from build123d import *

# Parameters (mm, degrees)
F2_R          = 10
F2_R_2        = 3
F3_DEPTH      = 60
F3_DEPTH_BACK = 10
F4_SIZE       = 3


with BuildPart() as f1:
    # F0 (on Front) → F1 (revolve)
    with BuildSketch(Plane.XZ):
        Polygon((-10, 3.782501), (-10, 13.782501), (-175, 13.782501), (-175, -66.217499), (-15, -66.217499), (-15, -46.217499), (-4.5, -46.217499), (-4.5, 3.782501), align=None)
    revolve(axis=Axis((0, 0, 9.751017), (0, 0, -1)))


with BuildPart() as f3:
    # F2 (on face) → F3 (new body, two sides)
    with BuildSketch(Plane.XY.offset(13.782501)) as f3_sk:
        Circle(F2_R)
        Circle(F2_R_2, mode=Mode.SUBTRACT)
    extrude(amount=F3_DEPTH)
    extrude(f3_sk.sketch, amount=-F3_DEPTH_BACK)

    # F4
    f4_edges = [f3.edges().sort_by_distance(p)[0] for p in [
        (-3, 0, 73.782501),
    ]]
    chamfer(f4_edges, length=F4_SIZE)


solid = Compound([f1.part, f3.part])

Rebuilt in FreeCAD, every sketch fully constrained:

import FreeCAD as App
import Part
import Sketcher

V = App.Vector


def edges_at(feature, points):
    """Names of the edges that pass closest to the given points."""
    edges = feature.Shape.Edges
    near = lambda p: min(range(len(edges)), key=lambda i: edges[i].distToShape(Part.Vertex(*p))[0])
    return sorted({f"Edge{near(p) + 1}" for p in points})

doc = App.newDocument("Part")
body = doc.addObject("PartDesign::Body", "Body")

sketch1 = body.newObject("Sketcher::SketchObject", "Sketch")
sketch1.AttachmentSupport = (doc.getObject("XZ_Plane"), [""])
sketch1.MapMode = "FlatFace"
sketch1.addGeometry(Part.LineSegment(V(-10, 4, 0), V(-10, 14, 0)), False)
sketch1.addGeometry(Part.LineSegment(V(-10, 14, 0), V(-175, 14, 0)), False)
sketch1.addGeometry(Part.LineSegment(V(-175, 14, 0), V(-175, -66, 0)), False)
sketch1.addGeometry(Part.LineSegment(V(-175, -66, 0), V(-15, -66, 0)), False)
sketch1.addGeometry(Part.LineSegment(V(-15, -66, 0), V(-15, -46, 0)), False)
sketch1.addGeometry(Part.LineSegment(V(-15, -46, 0), V(-4, -46, 0)), False)
sketch1.addGeometry(Part.LineSegment(V(-4, -46, 0), V(-4, 4, 0)), False)
sketch1.addGeometry(Part.LineSegment(V(-4, 4, 0), V(-10, 4, 0)), False)
sketch1.addConstraint(Sketcher.Constraint("Coincident", 0, 2, 1, 1))
sketch1.addConstraint(Sketcher.Constraint("Coincident", 1, 2, 2, 1))
sketch1.addConstraint(Sketcher.Constraint("Coincident", 2, 2, 3, 1))
sketch1.addConstraint(Sketcher.Constraint("Coincident", 3, 2, 4, 1))
sketch1.addConstraint(Sketcher.Constraint("Coincident", 4, 2, 5, 1))
sketch1.addConstraint(Sketcher.Constraint("Coincident", 5, 2, 6, 1))
sketch1.addConstraint(Sketcher.Constraint("Coincident", 6, 2, 7, 1))
sketch1.addConstraint(Sketcher.Constraint("Coincident", 7, 2, 0, 1))
sketch1.addConstraint(Sketcher.Constraint("Vertical", 0))
sketch1.addConstraint(Sketcher.Constraint("Horizontal", 1))
sketch1.addConstraint(Sketcher.Constraint("Vertical", 2))
sketch1.addConstraint(Sketcher.Constraint("Horizontal", 3))
sketch1.addConstraint(Sketcher.Constraint("Vertical", 4))
sketch1.addConstraint(Sketcher.Constraint("Horizontal", 5))
sketch1.addConstraint(Sketcher.Constraint("Vertical", 6))
sketch1.addConstraint(Sketcher.Constraint("Horizontal", 7))
sketch1.addConstraint(Sketcher.Constraint("DistanceX", 1, 2, 1, 1, 165.0))
sketch1.addConstraint(Sketcher.Constraint("DistanceX", 3, 1, 3, 2, 160.0))
sketch1.addConstraint(Sketcher.Constraint("DistanceY", 0, 1, 0, 2, 10.0))
sketch1.addConstraint(Sketcher.Constraint("DistanceY", 2, 2, 2, 1, 80.0))
sketch1.addConstraint(Sketcher.Constraint("DistanceY", 4, 1, 4, 2, 20.0))
sketch1.addConstraint(Sketcher.Constraint("DistanceX", 5, 1, 5, 2, 10.5))
sketch1.addConstraint(Sketcher.Constraint("DistanceX", 0, 2, -1, 1, 10.0))
sketch1.addConstraint(Sketcher.Constraint("DistanceY", -1, 1, 0, 2, 13.782501))
revolution = body.newObject("PartDesign::Revolution", "Revolution")
revolution.Profile = sketch1
revolution.ReferenceAxis = (sketch1, ["V_Axis"])
revolution.Angle = 360
body2 = doc.addObject("PartDesign::Body", "Body001")

sketch2 = body2.newObject("Sketcher::SketchObject", "Sketch001")
sketch2.AttachmentSupport = (doc.getObject("XY_Plane001"), [""])
sketch2.MapMode = "FlatFace"
sketch2.AttachmentOffset = App.Placement(V(0, 0, 13.782501), App.Rotation())
sketch2.addGeometry(Part.Circle(V(0, 0, 0), V(0, 0, 1), 10), False)
sketch2.addGeometry(Part.Circle(V(0, 0, 0), V(0, 0, 1), 3), False)
sketch2.addConstraint(Sketcher.Constraint("Coincident", 0, 3, -1, 1))
sketch2.addConstraint(Sketcher.Constraint("Coincident", 1, 3, -1, 1))
sketch2.addConstraint(Sketcher.Constraint("Diameter", 0, 20.0))
sketch2.addConstraint(Sketcher.Constraint("Diameter", 1, 6.0))
pad1 = body2.newObject("PartDesign::Pad", "Pad")
pad1.Profile = sketch2
pad1.Type = "TwoLengths"
pad1.Length = 60
pad1.Length2 = 10
doc.recompute()

chamfer = body2.newObject("PartDesign::Chamfer", "Chamfer")
chamfer.Base = (pad1, edges_at(pad1, [(-3, 0, 73.783)]))
chamfer.Size = 3

doc.recompute()
